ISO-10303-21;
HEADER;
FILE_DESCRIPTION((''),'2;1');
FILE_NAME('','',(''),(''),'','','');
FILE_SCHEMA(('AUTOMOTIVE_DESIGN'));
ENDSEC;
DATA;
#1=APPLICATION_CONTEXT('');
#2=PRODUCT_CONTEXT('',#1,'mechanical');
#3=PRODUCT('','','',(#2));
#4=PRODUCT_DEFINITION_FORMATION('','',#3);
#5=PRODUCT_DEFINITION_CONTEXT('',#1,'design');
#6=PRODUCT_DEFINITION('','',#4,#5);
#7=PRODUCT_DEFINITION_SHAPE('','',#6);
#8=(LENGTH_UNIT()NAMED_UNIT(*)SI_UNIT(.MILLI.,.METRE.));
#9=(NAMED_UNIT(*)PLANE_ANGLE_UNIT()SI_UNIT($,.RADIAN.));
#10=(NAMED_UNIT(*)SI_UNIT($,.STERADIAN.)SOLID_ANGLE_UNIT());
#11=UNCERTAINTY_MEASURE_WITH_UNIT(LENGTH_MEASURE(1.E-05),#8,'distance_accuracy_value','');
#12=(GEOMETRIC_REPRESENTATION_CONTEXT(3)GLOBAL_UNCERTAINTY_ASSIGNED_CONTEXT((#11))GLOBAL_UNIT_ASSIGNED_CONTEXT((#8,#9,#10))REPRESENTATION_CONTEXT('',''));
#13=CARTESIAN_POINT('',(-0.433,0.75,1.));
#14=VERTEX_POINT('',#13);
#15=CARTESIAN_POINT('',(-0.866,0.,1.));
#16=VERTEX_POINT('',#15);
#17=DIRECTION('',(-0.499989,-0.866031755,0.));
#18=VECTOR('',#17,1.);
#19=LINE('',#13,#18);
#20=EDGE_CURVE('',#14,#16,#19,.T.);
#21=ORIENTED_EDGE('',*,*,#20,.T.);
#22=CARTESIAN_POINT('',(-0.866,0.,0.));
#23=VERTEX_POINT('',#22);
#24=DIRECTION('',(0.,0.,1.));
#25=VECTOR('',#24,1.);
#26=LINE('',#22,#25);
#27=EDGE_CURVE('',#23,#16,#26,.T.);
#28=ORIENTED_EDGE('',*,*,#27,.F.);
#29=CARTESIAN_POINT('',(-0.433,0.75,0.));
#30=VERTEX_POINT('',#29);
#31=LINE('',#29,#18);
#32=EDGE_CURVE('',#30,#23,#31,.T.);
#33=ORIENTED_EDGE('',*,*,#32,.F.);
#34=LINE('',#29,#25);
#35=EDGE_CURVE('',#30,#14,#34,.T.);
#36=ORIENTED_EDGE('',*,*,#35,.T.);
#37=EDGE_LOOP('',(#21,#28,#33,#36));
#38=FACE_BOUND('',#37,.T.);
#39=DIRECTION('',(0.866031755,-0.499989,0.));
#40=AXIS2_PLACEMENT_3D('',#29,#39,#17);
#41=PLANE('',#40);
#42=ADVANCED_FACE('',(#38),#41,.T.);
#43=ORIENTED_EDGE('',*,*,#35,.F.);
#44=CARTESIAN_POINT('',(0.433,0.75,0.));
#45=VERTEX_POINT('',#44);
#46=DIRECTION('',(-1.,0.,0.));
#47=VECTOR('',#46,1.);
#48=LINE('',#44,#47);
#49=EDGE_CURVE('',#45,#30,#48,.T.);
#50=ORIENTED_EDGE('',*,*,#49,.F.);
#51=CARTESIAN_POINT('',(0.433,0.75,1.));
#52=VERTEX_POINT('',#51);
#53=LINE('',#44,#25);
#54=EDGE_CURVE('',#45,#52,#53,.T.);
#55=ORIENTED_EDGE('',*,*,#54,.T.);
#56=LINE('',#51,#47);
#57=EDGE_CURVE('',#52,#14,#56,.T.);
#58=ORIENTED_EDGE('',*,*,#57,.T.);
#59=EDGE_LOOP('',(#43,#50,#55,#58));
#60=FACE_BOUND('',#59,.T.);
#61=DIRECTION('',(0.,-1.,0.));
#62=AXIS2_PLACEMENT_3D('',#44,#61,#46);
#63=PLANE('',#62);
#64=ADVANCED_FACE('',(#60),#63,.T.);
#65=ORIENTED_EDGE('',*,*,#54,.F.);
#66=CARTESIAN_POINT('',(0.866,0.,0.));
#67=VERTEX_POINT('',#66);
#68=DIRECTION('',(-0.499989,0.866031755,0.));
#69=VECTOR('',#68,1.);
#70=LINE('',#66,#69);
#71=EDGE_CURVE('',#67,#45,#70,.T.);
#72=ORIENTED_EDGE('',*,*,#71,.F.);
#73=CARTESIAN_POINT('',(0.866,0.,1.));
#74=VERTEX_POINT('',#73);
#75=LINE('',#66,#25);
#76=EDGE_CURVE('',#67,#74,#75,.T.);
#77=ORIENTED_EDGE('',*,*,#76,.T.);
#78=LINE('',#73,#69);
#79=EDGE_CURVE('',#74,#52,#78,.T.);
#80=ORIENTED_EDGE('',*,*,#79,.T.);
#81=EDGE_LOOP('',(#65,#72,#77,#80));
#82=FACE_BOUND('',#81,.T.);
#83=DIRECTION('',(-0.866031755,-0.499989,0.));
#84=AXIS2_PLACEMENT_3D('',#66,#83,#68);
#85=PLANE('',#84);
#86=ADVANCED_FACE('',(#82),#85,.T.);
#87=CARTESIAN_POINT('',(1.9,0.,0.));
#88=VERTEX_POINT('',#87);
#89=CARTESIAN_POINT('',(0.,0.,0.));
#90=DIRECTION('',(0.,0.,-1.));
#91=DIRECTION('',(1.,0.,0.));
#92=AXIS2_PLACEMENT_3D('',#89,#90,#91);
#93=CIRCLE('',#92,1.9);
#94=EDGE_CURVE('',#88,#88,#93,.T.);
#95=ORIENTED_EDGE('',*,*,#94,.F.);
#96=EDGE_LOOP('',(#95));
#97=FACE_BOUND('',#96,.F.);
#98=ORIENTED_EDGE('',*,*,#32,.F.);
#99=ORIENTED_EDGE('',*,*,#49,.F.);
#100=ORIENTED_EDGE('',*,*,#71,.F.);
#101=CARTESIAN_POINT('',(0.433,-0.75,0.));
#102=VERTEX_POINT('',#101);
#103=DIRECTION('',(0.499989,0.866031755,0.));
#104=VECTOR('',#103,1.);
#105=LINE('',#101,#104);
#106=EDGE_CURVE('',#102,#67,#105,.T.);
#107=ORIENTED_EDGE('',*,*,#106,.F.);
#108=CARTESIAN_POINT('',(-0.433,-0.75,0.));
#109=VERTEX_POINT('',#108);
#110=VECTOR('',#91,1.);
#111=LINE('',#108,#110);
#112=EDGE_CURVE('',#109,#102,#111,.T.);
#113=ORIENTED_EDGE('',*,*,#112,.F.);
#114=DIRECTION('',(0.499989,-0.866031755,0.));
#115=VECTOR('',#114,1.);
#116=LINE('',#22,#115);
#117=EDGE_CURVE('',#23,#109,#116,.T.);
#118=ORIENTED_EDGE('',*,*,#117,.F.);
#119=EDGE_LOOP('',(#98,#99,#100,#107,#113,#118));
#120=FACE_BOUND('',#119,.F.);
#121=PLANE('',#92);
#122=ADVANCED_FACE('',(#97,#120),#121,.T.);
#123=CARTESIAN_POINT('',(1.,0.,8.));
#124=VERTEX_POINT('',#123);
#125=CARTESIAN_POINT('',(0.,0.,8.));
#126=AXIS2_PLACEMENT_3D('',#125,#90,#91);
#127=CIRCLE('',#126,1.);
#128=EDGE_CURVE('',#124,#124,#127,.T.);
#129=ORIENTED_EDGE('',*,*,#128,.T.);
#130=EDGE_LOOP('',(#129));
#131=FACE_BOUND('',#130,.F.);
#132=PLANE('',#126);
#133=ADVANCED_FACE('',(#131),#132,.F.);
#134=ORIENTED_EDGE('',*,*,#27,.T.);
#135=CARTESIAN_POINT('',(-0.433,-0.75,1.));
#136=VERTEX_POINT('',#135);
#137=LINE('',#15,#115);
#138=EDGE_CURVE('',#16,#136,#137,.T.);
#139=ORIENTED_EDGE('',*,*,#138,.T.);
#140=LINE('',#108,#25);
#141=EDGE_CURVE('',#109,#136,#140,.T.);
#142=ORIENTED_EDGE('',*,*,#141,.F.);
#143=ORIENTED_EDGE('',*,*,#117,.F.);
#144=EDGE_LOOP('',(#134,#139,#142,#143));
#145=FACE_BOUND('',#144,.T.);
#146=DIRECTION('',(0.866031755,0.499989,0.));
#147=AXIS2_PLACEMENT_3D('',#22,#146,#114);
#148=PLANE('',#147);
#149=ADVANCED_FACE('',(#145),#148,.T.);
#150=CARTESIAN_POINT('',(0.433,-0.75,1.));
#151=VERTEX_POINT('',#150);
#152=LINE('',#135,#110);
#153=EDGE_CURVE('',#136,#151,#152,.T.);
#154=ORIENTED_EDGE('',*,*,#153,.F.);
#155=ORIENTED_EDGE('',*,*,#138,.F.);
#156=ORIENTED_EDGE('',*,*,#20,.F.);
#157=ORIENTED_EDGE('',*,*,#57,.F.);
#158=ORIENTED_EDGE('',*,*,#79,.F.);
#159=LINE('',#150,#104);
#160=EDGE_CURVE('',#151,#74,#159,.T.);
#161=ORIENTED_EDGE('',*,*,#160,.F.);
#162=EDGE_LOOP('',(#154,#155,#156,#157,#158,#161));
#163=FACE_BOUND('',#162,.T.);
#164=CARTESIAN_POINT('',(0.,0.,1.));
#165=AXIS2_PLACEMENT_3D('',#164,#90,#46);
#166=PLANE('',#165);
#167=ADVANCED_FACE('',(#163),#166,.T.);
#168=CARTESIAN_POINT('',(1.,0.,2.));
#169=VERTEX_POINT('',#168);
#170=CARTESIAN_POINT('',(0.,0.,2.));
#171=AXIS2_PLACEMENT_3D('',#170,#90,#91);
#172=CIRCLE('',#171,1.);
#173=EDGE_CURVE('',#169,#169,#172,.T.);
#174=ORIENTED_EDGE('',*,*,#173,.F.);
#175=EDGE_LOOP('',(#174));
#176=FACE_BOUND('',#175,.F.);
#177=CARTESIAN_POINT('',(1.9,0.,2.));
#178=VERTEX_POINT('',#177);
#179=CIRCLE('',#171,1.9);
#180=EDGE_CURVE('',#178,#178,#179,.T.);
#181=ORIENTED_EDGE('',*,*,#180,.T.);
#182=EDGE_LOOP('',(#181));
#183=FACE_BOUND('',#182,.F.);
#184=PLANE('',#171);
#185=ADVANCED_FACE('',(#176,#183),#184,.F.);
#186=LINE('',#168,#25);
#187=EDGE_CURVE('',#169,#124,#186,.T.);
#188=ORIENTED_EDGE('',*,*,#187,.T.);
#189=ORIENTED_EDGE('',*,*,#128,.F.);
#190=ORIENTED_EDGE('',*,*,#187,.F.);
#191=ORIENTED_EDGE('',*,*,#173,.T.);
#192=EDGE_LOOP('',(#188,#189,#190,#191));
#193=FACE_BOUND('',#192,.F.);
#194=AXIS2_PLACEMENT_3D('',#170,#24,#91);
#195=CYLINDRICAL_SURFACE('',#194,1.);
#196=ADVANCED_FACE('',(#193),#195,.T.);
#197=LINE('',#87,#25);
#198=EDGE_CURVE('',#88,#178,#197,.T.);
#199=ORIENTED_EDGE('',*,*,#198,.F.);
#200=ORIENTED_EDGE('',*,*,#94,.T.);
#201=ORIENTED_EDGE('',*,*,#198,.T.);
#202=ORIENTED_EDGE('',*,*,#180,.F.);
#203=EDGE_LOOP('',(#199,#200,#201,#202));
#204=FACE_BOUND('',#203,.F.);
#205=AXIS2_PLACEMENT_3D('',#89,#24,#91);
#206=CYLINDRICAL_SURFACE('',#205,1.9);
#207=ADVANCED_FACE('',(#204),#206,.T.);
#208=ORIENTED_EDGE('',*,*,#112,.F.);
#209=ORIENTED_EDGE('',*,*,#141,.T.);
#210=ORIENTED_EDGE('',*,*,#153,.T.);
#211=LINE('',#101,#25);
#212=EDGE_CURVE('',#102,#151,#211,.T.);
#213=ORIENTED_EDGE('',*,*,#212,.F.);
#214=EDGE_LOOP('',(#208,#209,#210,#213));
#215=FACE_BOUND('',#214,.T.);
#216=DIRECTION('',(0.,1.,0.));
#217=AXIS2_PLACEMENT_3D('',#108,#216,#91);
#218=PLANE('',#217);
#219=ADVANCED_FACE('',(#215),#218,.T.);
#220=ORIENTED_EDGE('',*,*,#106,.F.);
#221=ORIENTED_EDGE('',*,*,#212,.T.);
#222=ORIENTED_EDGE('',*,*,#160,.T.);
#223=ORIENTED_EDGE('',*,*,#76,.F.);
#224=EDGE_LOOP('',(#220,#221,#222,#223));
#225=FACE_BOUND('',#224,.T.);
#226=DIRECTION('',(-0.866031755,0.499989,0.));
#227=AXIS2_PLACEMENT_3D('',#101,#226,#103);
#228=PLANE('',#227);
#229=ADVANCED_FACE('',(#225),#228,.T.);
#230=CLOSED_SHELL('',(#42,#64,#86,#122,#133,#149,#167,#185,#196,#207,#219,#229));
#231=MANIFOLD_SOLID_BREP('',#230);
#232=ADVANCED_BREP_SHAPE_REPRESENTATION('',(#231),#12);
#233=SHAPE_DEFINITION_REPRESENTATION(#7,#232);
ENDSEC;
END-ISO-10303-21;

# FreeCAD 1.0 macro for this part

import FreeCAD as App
import Part
import Sketcher
Q = App.Units.Quantity

doc = App.newDocument("Part")
params = doc.addObject("Spreadsheet::Sheet", "Params")
for row, (alias, value) in enumerate([
    ("sketch1_height", "6 mm"),
    ("sketch1_height2", "2 mm"),
    ("sketch1_width", "1 mm"),
    ("sketch1_width2", "1.9 mm"),
    ("revolution_angle", "360 deg"),
    ("pocket1_length", "1 mm"),
], start=1):
    params.set(f"A{row}", alias)
    params.set(f"B{row}", "=" + value)
    params.setAlias(f"B{row}", alias)

body = doc.addObject("PartDesign::Body", "Body")

# Sketch on XZ plane
sketch1 = body.newObject("Sketcher::SketchObject", "Sketch")
sketch1.AttachmentSupport = (doc.getObject("XZ_Plane"), [""])
sketch1.MapMode = "FlatFace"
sketch1.addGeometry(Part.LineSegment(App.Vector(1.9, 0, 0), App.Vector(0, 0, 0)), False)
sketch1.addGeometry(Part.LineSegment(App.Vector(0, 0, 0), App.Vector(0, 8, 0)), False)
sketch1.addGeometry(Part.LineSegment(App.Vector(0, 8, 0), App.Vector(1, 8, 0)), False)
sketch1.addGeometry(Part.LineSegment(App.Vector(1, 8, 0), App.Vector(1, 2, 0)), False)
sketch1.addGeometry(Part.LineSegment(App.Vector(1, 2, 0), App.Vector(1.9, 2, 0)), False)
sketch1.addGeometry(Part.LineSegment(App.Vector(1.9, 2, 0), App.Vector(1.9, 0, 0)), False)
sketch1.addConstraint(Sketcher.Constraint("Coincident", 0, 2, 1, 1))
sketch1.addConstraint(Sketcher.Constraint("Coincident", 1, 2, 2, 1))
sketch1.addConstraint(Sketcher.Constraint("Coincident", 2, 2, 3, 1))
sketch1.addConstraint(Sketcher.Constraint("Coincident", 3, 2, 4, 1))
sketch1.addConstraint(Sketcher.Constraint("Coincident", 4, 2, 5, 1))
sketch1.addConstraint(Sketcher.Constraint("Coincident", 5, 2, 0, 1))
sketch1.addConstraint(Sketcher.Constraint("Horizontal", 0))
sketch1.addConstraint(Sketcher.Constraint("Vertical", 1))
sketch1.addConstraint(Sketcher.Constraint("Horizontal", 2))
sketch1.addConstraint(Sketcher.Constraint("Vertical", 3))
sketch1.addConstraint(Sketcher.Constraint("Horizontal", 4))
sketch1.addConstraint(Sketcher.Constraint("Vertical", 5))
sketch1.addConstraint(Sketcher.Constraint("Coincident", 0, 2, -1, 1))
sketch1.addConstraint(Sketcher.Constraint("DistanceY", 3, 2, 3, 1, Q("6 mm")))
sketch1.addConstraint(Sketcher.Constraint("DistanceY", 5, 2, 5, 1, Q("2 mm")))
sketch1.addConstraint(Sketcher.Constraint("DistanceX", 2, 1, 2, 2, Q("1 mm")))
sketch1.addConstraint(Sketcher.Constraint("DistanceX", 0, 2, 0, 1, Q("1.9 mm")))
sketch1.setExpression("Constraints[13]", "Params.sketch1_height")
sketch1.setExpression("Constraints[14]", "Params.sketch1_height2")
sketch1.setExpression("Constraints[15]", "Params.sketch1_width")
sketch1.setExpression("Constraints[16]", "Params.sketch1_width2")
revolution = body.newObject("PartDesign::Revolution", "Revolution")
revolution.Profile = sketch1
revolution.ReferenceAxis = (sketch1, ["V_Axis"])
revolution.setExpression("Angle", "Params.revolution_angle")

# Sketch on XY plane
sketch2 = body.newObject("Sketcher::SketchObject", "Sketch001")
sketch2.AttachmentSupport = (doc.getObject("XY_Plane"), [""])
sketch2.MapMode = "FlatFace"
sketch2.addGeometry(Part.LineSegment(App.Vector(-0.9, 0, 0), App.Vector(-0.4, 0.8, 0)), False)
sketch2.addGeometry(Part.LineSegment(App.Vector(-0.4, 0.8, 0), App.Vector(0.4, 0.8, 0)), False)
sketch2.addGeometry(Part.LineSegment(App.Vector(0.4, 0.8, 0), App.Vector(0.9, 0, 0)), False)
sketch2.addGeometry(Part.LineSegment(App.Vector(0.9, 0, 0), App.Vector(0.4, -0.8, 0)), False)
sketch2.addGeometry(Part.LineSegment(App.Vector(0.4, -0.8, 0), App.Vector(-0.4, -0.8, 0)), False)
sketch2.addGeometry(Part.LineSegment(App.Vector(-0.4, -0.8, 0), App.Vector(-0.9, 0, 0)), False)
sketch2.addConstraint(Sketcher.Constraint("Coincident", 0, 2, 1, 1))
sketch2.addConstraint(Sketcher.Constraint("Coincident", 1, 2, 2, 1))
sketch2.addConstraint(Sketcher.Constraint("Coincident", 2, 2, 3, 1))
sketch2.addConstraint(Sketcher.Constraint("Coincident", 3, 2, 4, 1))
sketch2.addConstraint(Sketcher.Constraint("Coincident", 4, 2, 5, 1))
sketch2.addConstraint(Sketcher.Constraint("Coincident", 5, 2, 0, 1))
sketch2.addConstraint(Sketcher.Constraint("Horizontal", 1))
sketch2.addConstraint(Sketcher.Constraint("Horizontal", 4))
sketch2.addConstraint(Sketcher.Constraint("Symmetric", 0, 2, 3, 2, -1, 1))
sketch2.addConstraint(Sketcher.Constraint("Symmetric", 2, 2, 5, 2, -1, 1))
sketch2.addConstraint(Sketcher.Constraint("PointOnObject", 2, 2, -1))
sketch2.addConstraint(Sketcher.Constraint("Parallel", 2, 5))
sketch2.addConstraint(Sketcher.Constraint("Vertical", 1, 2, 3, 2))
sketch2.addConstraint(Sketcher.Constraint("DistanceY", 3, 2, 1, 2, Q("1.5 mm")))
sketch2.addConstraint(Sketcher.Constraint("Angle", 0, Q("60.0007 deg")))
sketch2.addConstraint(Sketcher.Constraint("DistanceX", 1, 1, 1, 2, Q("0.866 mm")))
pocket1 = body.newObject("PartDesign::Pocket", "Pocket")
pocket1.Profile = sketch2
pocket1.setExpression("Length", "Params.pocket1_length")
pocket1.Reversed = True

doc.recompute()
